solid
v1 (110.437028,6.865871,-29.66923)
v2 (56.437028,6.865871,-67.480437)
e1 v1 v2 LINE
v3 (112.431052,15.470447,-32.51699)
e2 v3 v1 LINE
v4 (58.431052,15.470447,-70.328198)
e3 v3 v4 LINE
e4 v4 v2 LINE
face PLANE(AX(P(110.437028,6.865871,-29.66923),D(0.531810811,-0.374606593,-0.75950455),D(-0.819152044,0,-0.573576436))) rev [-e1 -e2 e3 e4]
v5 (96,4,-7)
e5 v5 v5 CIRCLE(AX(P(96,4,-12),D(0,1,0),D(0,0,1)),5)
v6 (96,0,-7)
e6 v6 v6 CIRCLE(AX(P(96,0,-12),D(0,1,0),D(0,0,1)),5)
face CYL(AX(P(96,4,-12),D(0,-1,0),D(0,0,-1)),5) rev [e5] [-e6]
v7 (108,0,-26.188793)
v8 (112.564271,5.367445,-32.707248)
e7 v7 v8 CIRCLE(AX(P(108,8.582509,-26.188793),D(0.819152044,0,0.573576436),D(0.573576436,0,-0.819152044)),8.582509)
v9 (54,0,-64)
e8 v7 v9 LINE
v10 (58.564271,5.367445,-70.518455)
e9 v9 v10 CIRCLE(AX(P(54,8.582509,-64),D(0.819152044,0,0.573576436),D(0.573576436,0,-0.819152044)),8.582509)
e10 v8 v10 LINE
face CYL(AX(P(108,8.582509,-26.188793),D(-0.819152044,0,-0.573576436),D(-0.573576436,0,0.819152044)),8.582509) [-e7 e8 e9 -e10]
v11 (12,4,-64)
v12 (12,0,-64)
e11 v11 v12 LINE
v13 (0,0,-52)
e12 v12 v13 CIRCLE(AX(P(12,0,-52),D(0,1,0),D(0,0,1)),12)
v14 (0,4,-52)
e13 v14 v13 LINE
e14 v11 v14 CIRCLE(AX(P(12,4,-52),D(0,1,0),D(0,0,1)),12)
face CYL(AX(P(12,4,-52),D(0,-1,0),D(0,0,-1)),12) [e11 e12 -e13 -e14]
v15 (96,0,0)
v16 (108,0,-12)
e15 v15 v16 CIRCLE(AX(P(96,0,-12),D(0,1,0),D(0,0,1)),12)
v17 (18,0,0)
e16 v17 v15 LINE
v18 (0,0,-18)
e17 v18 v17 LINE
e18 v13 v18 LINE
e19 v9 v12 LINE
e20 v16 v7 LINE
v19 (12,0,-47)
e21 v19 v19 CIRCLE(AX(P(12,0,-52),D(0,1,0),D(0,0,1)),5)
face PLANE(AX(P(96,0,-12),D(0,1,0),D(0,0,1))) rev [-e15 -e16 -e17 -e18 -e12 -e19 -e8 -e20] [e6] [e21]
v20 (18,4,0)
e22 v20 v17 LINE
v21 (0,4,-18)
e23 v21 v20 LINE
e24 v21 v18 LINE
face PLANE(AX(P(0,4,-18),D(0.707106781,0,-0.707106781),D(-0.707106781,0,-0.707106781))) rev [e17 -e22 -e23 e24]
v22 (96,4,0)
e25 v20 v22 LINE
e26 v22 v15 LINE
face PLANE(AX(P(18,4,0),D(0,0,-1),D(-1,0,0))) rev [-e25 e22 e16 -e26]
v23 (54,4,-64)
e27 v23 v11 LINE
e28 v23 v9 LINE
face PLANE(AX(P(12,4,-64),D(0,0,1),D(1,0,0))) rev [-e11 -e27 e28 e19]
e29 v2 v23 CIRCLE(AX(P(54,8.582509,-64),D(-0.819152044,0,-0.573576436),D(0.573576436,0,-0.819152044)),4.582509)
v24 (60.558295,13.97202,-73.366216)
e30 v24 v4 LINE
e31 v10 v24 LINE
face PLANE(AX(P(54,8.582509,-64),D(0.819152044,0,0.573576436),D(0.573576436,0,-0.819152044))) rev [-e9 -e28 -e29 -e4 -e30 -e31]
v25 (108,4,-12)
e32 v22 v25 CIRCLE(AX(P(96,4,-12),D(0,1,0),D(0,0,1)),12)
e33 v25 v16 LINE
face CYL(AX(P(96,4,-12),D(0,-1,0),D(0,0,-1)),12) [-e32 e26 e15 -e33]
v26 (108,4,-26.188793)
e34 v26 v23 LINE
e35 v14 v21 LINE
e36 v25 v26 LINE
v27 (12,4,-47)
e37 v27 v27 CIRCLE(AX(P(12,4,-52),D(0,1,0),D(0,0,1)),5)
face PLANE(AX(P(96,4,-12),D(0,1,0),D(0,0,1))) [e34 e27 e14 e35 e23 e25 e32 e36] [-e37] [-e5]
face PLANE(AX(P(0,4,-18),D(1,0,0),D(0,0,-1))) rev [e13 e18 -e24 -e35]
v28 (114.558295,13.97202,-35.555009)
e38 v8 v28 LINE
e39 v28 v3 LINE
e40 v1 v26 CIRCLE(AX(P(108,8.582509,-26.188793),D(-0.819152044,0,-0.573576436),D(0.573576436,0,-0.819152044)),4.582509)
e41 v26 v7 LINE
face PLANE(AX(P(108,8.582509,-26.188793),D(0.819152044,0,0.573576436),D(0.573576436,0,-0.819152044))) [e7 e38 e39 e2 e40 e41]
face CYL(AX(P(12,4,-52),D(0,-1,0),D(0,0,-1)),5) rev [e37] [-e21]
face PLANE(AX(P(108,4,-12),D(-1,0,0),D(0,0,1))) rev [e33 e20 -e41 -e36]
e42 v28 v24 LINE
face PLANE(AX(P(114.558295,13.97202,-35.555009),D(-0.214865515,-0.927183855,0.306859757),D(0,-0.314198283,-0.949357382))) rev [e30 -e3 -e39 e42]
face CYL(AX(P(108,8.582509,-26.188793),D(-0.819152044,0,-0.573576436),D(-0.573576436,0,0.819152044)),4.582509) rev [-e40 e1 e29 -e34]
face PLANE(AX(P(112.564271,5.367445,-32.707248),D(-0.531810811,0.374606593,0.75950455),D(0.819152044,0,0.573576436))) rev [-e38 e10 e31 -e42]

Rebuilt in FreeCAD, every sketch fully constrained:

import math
import FreeCAD as App
import Part
import Sketcher

V = App.Vector
Q = App.Units.Quantity

doc = App.newDocument("Part")
params = doc.addObject("Spreadsheet::Sheet", "Params")
for row, (alias, value) in enumerate([
    ("sketch1_diameter", "10 mm"),
    ("sketch1_radius", "12 mm"),
    ("sketch1_width", "78 mm"),
    ("sketch1_width2", "42 mm"),
    ("sketch1_height", "34 mm"),
    ("pad1_length", "4 mm"),
    ("sketch2_height", "4 mm"),
    ("pad2_length", "65.921828 mm"),
], start=1):
    params.set(f"A{row}", alias)
    params.set(f"B{row}", "=" + value)
    params.setAlias(f"B{row}", alias)

body = doc.addObject("PartDesign::Body", "Body")

sketch1 = body.newObject("Sketcher::SketchObject", "Sketch")
sketch1.AttachmentSupport = (doc.getObject("XZ_Plane"), [""])
sketch1.MapMode = "FlatFace"
sketch1.addGeometry([
    Part.LineSegment(V(0, -18, 0), V(18, 0, 0)),
    Part.LineSegment(V(18, 0, 0), V(96, 0, 0)),
    Part.ArcOfCircle(Part.Circle(V(96, -12, 0), V(0, 0, 1), 12), math.radians(0), math.radians(90)),
    Part.LineSegment(V(108, -12, 0), V(108, -26, 0)),
    Part.LineSegment(V(108, -26, 0), V(54, -64, 0)),
    Part.LineSegment(V(54, -64, 0), V(12, -64, 0)),
    Part.ArcOfCircle(Part.Circle(V(12, -52, 0), V(0, 0, 1), 12), math.radians(-180), math.radians(-90)),
    Part.LineSegment(V(0, -52, 0), V(0, -18, 0)),
    Part.Circle(V(96, -12, 0), V(0, 0, 1), 5),
    Part.Circle(V(12, -52, 0), V(0, 0, 1), 5),
], False)
sketch1.addConstraint([
    Sketcher.Constraint("Coincident", 0, 2, 1, 1),
    Sketcher.Constraint("Tangent", 1, 2, 2, 2),
    Sketcher.Constraint("Tangent", 2, 1, 3, 1),
    Sketcher.Constraint("Coincident", 3, 2, 4, 1),
    Sketcher.Constraint("Coincident", 4, 2, 5, 1),
    Sketcher.Constraint("Tangent", 5, 2, 6, 2),
    Sketcher.Constraint("Tangent", 6, 1, 7, 1),
    Sketcher.Constraint("Coincident", 7, 2, 0, 1),
    Sketcher.Constraint("Horizontal", 1),
    Sketcher.Constraint("Vertical", 3),
    Sketcher.Constraint("Horizontal", 5),
    Sketcher.Constraint("Vertical", 7),
    Sketcher.Constraint("Coincident", 8, 3, 2, 3),
    Sketcher.Constraint("Coincident", 9, 3, 6, 3),
    Sketcher.Constraint("Equal", 2, 6),
    Sketcher.Constraint("Equal", 8, 9),
    Sketcher.Constraint("PointOnObject", 0, 2, -1),
    Sketcher.Constraint("PointOnObject", 6, 1, -2),
    Sketcher.Constraint("Diameter", 8, Q("10 mm")),
    Sketcher.Constraint("Radius", 2, Q("12 mm")),
    Sketcher.Constraint("DistanceX", 1, 1, 1, 2, Q("78 mm")),
    Sketcher.Constraint("DistanceX", 5, 2, 5, 1, Q("42 mm")),
    Sketcher.Constraint("DistanceY", 7, 1, 7, 2, Q("34 mm")),
    Sketcher.Constraint("Angle", 0, Q("45 deg")),
    Sketcher.Constraint("Angle", 4, Q("-145 deg")),
    Sketcher.Constraint("DistanceX", -1, 1, 2, 3, Q("96 mm")),
])
sketch1.setExpression("Constraints[18]", "Params.sketch1_diameter")
sketch1.setExpression("Constraints[19]", "Params.sketch1_radius")
sketch1.setExpression("Constraints[20]", "Params.sketch1_width")
sketch1.setExpression("Constraints[21]", "Params.sketch1_width2")
sketch1.setExpression("Constraints[22]", "Params.sketch1_height")
pad1 = body.newObject("PartDesign::Pad", "Pad")
pad1.Profile = sketch1
pad1.setExpression("Length", "Params.pad1_length")
pad1.Reversed = True

sketch2 = body.newObject("Sketcher::SketchObject", "Sketch001")
sketch2.Placement = App.Placement(V(6.16438, 0, 4.316345), App.Rotation(V(0.573576436, 0, -0.819152044), V(0, 0.999999999, 0), V(0.819152044, 0, 0.573576436), "ZXY"))
sketch2.addGeometry([
    Part.LineSegment(V(91.4, 5.4, 0), V(94.8, 14, 0)),
    Part.LineSegment(V(94.8, 14, 0), V(91.1, 15.5, 0)),
    Part.LineSegment(V(91.1, 15.5, 0), V(87.6, 6.9, 0)),
    Part.ArcOfCircle(Part.Circle(V(83.4, 8.6, 0), V(0, 0, 1), 4.6), math.radians(-90), math.radians(-22)),
    Part.LineSegment(V(83.4, 4, 0), V(83.4, 0, 0)),
    Part.ArcOfCircle(Part.Circle(V(83.4, 8.6, 0), V(0, 0, 1), 8.6), math.radians(-90), math.radians(-22)),
], False)
sketch2.addConstraint([
    Sketcher.Constraint("Coincident", 0, 2, 1, 1),
    Sketcher.Constraint("Coincident", 1, 2, 2, 1),
    Sketcher.Constraint("Tangent", 2, 2, 3, 2),
    Sketcher.Constraint("Coincident", 3, 1, 4, 1),
    Sketcher.Constraint("Coincident", 4, 2, 5, 1),
    Sketcher.Constraint("Tangent", 5, 2, 0, 1),
    Sketcher.Constraint("Vertical", 4),
    Sketcher.Constraint("Coincident", 5, 3, 3, 3),
    Sketcher.Constraint("PointOnObject", 4, 2, -1),
    Sketcher.Constraint("Perpendicular", 0, 1),
    Sketcher.Constraint("Perpendicular", 1, 2),
    Sketcher.Constraint("Vertical", 5, 3, 3, 1),
    Sketcher.Constraint("DistanceY", 4, 2, 4, 1, Q("4 mm")),
    Sketcher.Constraint("Angle", 0, Q("68 deg")),
    Sketcher.Constraint("Radius", 3, Q("4.582509 mm")),
    Sketcher.Constraint("DistanceX", -1, 1, 3, 3, Q("83.398858 mm")),
    Sketcher.Constraint("DistanceY", -1, 1, 0, 2, Q("13.97202 mm")),
])
sketch2.setExpression("Constraints[12]", "Params.sketch2_height")
pad2 = body.newObject("PartDesign::Pad", "Pad001")
pad2.Profile = sketch2
pad2.setExpression("Length", "Params.pad2_length")

doc.recompute()
